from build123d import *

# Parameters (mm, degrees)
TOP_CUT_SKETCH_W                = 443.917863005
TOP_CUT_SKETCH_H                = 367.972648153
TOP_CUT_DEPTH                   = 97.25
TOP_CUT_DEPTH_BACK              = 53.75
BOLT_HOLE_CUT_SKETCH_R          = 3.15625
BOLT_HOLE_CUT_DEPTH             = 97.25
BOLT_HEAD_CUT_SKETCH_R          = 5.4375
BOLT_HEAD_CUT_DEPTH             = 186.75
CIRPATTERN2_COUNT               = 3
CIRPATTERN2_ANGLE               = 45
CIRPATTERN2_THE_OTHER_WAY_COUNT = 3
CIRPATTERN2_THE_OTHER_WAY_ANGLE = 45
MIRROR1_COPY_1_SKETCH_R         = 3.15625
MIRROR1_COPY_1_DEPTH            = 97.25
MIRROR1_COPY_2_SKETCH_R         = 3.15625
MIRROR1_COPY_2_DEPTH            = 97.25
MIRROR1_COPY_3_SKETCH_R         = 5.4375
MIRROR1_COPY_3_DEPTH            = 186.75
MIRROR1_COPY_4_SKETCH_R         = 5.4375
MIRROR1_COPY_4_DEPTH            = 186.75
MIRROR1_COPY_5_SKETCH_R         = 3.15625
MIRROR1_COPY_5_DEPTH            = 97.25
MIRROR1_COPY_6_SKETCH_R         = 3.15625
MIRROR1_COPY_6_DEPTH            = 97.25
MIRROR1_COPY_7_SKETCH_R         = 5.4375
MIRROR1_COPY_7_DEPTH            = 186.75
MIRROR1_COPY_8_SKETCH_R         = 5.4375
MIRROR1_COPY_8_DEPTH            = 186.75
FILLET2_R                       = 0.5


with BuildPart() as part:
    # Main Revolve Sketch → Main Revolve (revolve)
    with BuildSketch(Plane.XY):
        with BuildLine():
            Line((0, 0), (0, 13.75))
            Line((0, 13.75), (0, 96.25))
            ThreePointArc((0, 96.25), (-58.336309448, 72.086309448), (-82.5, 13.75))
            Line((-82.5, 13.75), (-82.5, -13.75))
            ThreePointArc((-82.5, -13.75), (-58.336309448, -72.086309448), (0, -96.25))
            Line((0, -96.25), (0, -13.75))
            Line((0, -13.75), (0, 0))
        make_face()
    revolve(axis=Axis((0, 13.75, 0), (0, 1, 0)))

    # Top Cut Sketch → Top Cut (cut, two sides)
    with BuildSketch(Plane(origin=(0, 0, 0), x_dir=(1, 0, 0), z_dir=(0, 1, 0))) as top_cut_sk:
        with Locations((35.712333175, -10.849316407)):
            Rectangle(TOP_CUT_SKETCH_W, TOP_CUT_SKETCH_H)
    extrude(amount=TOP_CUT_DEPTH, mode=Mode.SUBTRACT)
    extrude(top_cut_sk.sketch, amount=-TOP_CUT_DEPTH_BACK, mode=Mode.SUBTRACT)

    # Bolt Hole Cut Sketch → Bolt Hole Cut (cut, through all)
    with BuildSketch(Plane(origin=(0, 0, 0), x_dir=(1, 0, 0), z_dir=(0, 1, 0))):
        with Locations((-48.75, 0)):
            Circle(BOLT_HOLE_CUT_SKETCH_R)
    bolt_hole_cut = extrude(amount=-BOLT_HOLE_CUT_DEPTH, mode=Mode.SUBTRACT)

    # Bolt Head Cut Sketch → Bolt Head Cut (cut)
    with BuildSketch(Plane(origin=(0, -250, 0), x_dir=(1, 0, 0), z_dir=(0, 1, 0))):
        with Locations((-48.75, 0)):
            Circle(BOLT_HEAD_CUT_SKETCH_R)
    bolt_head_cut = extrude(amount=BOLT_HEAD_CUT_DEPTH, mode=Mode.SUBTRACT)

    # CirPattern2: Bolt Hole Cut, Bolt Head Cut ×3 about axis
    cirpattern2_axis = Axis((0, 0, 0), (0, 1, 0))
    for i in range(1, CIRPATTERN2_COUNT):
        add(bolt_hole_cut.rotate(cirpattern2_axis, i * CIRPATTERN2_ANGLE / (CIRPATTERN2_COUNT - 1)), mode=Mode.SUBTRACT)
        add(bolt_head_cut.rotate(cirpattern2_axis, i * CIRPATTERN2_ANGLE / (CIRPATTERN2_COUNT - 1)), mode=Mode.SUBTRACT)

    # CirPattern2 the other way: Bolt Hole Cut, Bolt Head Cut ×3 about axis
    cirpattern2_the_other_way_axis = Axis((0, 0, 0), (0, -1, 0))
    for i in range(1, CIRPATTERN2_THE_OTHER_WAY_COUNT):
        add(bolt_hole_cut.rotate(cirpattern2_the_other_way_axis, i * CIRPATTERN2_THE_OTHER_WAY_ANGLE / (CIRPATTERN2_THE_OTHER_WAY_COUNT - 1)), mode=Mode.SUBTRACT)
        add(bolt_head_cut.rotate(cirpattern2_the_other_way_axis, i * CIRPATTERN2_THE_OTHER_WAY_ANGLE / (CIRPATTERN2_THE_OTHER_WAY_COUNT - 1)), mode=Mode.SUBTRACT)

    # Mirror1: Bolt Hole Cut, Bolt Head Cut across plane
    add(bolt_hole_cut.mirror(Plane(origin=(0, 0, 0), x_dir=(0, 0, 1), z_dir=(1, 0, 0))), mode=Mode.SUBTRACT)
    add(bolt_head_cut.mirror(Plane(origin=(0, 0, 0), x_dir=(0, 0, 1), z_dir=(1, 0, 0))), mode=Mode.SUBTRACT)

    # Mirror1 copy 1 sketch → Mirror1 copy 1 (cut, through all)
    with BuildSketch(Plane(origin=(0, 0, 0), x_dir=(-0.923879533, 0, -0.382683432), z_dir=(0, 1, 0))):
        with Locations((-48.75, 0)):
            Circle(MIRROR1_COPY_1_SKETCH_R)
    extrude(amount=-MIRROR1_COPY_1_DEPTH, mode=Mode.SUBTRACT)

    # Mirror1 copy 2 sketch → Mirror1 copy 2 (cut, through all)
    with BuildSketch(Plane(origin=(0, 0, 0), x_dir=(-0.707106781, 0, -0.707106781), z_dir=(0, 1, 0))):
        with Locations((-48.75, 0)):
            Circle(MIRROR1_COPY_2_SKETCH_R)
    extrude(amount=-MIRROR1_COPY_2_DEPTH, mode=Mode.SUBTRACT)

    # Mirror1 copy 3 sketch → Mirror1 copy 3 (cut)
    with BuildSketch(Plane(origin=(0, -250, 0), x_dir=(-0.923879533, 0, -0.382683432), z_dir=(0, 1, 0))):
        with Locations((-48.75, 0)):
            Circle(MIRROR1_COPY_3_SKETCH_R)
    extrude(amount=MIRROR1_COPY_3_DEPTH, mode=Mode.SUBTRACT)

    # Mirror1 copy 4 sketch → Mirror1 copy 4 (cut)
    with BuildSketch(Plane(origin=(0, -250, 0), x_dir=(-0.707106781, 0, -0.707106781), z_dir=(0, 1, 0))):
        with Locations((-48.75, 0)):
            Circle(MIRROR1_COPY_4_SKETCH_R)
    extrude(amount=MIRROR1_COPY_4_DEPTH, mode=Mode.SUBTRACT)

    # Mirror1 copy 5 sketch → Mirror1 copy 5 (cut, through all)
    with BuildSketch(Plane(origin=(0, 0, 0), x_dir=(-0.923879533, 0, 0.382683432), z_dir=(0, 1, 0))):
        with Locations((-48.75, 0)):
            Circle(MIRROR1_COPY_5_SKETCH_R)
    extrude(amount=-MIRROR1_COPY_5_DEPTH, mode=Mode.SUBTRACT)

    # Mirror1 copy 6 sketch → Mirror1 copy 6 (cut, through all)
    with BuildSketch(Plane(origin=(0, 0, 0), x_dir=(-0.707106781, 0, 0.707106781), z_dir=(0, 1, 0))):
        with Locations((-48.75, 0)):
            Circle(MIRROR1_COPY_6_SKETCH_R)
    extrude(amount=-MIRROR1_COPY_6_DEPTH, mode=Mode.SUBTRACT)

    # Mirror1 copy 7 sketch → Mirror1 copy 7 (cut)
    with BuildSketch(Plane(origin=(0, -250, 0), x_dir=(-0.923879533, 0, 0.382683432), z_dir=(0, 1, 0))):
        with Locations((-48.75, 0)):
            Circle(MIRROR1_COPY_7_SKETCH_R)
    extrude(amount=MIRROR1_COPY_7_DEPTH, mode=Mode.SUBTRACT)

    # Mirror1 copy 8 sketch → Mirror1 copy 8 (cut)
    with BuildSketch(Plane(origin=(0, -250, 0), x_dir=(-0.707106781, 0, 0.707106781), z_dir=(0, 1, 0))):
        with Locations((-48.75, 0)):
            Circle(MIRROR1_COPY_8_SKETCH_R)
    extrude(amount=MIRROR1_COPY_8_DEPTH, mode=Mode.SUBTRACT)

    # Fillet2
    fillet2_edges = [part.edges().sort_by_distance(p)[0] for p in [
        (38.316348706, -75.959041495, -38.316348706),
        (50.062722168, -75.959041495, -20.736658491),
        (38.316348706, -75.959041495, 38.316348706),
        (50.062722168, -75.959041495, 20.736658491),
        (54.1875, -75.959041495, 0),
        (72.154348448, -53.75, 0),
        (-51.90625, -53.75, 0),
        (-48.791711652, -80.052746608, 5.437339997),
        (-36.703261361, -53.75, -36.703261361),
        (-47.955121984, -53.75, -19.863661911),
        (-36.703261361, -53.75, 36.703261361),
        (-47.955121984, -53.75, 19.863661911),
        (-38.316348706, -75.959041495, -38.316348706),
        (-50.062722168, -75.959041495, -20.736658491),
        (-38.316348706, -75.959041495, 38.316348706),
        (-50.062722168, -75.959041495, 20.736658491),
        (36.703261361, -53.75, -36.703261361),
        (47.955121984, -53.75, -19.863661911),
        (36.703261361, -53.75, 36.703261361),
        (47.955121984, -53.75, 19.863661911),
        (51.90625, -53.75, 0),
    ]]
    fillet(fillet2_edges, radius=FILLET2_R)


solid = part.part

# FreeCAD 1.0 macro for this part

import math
import FreeCAD as App
import Part
import Sketcher

V = App.Vector
Q = App.Units.Quantity


def edges_at(feature, points):
    """Names of the edges that pass closest to the given points."""
    edges = feature.Shape.Edges
    near = lambda p: min(range(len(edges)), key=lambda i: edges[i].distToShape(Part.Vertex(*p))[0])
    return sorted({f"Edge{near(p) + 1}" for p in points})

doc = App.newDocument("Part")
body = doc.addObject("PartDesign::Body", "Body")

sketch1 = body.newObject("Sketcher::SketchObject", "Sketch")
sketch1.AttachmentSupport = (doc.getObject("XY_Plane"), [""])
sketch1.MapMode = "FlatFace"
sketch1.addGeometry(Part.ArcOfCircle(Part.Circle(V(0, 14, 0), V(0, 0, 1), 82), math.radians(90), math.radians(180)), False)
sketch1.addGeometry(Part.LineSegment(V(-82, 14, 0), V(-82, -14, 0)), False)
sketch1.addGeometry(Part.ArcOfCircle(Part.Circle(V(0, -14, 0), V(0, 0, 1), 82), math.radians(180), math.radians(270)), False)
sketch1.addGeometry(Part.LineSegment(V(0, -96, 0), V(0, 96, 0)), False)
sketch1.addConstraint(Sketcher.Constraint("Tangent", 0, 2, 1, 1))
sketch1.addConstraint(Sketcher.Constraint("Tangent", 1, 2, 2, 1))
sketch1.addConstraint(Sketcher.Constraint("Coincident", 2, 2, 3, 1))
sketch1.addConstraint(Sketcher.Constraint("Coincident", 3, 2, 0, 1))
sketch1.addConstraint(Sketcher.Constraint("Vertical", 1))
sketch1.addConstraint(Sketcher.Constraint("Vertical", 3))
sketch1.addConstraint(Sketcher.Constraint("Equal", 0, 2))
sketch1.addConstraint(Sketcher.Constraint("Symmetric", 0, 3, 2, 3, -1, 1))
sketch1.addConstraint(Sketcher.Constraint("PointOnObject", 2, 2, -2))
sketch1.addConstraint(Sketcher.Constraint("Radius", 0, Q("82.5 mm")))
sketch1.addConstraint(Sketcher.Constraint("DistanceY", 1, 2, 1, 1, Q("27.5 mm")))
revolution = body.newObject("PartDesign::Revolution", "Revolution")
revolution.Profile = sketch1
revolution.ReferenceAxis = (sketch1, ["V_Axis"])
revolution.Angle = 360

sketch2 = body.newObject("Sketcher::SketchObject", "Sketch001")
sketch2.AttachmentSupport = (doc.getObject("XZ_Plane"), [""])
sketch2.MapMode = "FlatFace"
sketch2.addGeometry(Part.LineSegment(V(-186, -173, 0), V(-186, 195, 0)), False)
sketch2.addGeometry(Part.LineSegment(V(-186, 195, 0), V(258, 195, 0)), False)
sketch2.addGeometry(Part.LineSegment(V(258, 195, 0), V(258, -173, 0)), False)
sketch2.addGeometry(Part.LineSegment(V(258, -173, 0), V(-186, -173, 0)), False)
sketch2.addConstraint(Sketcher.Constraint("Coincident", 0, 2, 1, 1))
sketch2.addConstraint(Sketcher.Constraint("Coincident", 1, 2, 2, 1))
sketch2.addConstraint(Sketcher.Constraint("Coincident", 2, 2, 3, 1))
sketch2.addConstraint(Sketcher.Constraint("Coincident", 3, 2, 0, 1))
sketch2.addConstraint(Sketcher.Constraint("Vertical", 0))
sketch2.addConstraint(Sketcher.Constraint("Horizontal", 1))
sketch2.addConstraint(Sketcher.Constraint("Vertical", 2))
sketch2.addConstraint(Sketcher.Constraint("Horizontal", 3))
sketch2.addConstraint(Sketcher.Constraint("DistanceY", 0, 1, 0, 2, Q("367.972648 mm")))
sketch2.addConstraint(Sketcher.Constraint("DistanceX", 0, 2, -1, 1, Q("186.246598 mm")))
sketch2.addConstraint(Sketcher.Constraint("DistanceX", 1, 1, 1, 2, Q("443.917863 mm")))
sketch2.addConstraint(Sketcher.Constraint("DistanceY", -1, 1, 0, 2, Q("194.83564 mm")))
pocket1 = body.newObject("PartDesign::Pocket", "Pocket")
pocket1.Profile = sketch2
pocket1.Type = "TwoLengths"
pocket1.Length = 97.25
pocket1.Length2 = 53.75

sketch3 = body.newObject("Sketcher::SketchObject", "Sketch002")
sketch3.AttachmentSupport = (doc.getObject("XZ_Plane"), [""])
sketch3.MapMode = "FlatFace"
sketch3.addGeometry(Part.Circle(V(-48.8, 0, 0), V(0, 0, 1), 3.2), False)
sketch3.addConstraint(Sketcher.Constraint("PointOnObject", 0, 3, -1))
sketch3.addConstraint(Sketcher.Constraint("Diameter", 0, Q("6.3125 mm")))
sketch3.addConstraint(Sketcher.Constraint("DistanceX", 0, 3, -1, 1, Q("48.75 mm")))
pocket2 = body.newObject("PartDesign::Pocket", "Pocket001")
pocket2.Profile = sketch3
pocket2.Type = "ThroughAll"
pocket2.Reversed = True

sketch4 = body.newObject("Sketcher::SketchObject", "Sketch003")
sketch4.AttachmentSupport = (doc.getObject("XZ_Plane"), [""])
sketch4.MapMode = "FlatFace"
sketch4.AttachmentOffset = App.Placement(V(0, 0, 250), App.Rotation())
sketch4.addGeometry(Part.Circle(V(-49, 0, 0), V(0, 0, 1), 5), False)
sketch4.addConstraint(Sketcher.Constraint("PointOnObject", 0, 3, -1))
sketch4.addConstraint(Sketcher.Constraint("Diameter", 0, Q("10.875 mm")))
sketch4.addConstraint(Sketcher.Constraint("DistanceX", 0, 3, -1, 1, Q("48.75 mm")))
pocket3 = body.newObject("PartDesign::Pocket", "Pocket002")
pocket3.Profile = sketch4
pocket3.Length = 186.75
doc.recompute()

polarpattern = body.newObject("PartDesign::PolarPattern", "PolarPattern")
polarpattern.Originals = [pocket2, pocket3]
polarpattern.Axis = (doc.getObject("Y_Axis"), [""])
polarpattern.Angle = 45
polarpattern.Occurrences = 3
body.Tip = polarpattern
doc.recompute()

polarpattern2 = body.newObject("PartDesign::PolarPattern", "PolarPattern001")
polarpattern2.Originals = [pocket2, pocket3]
polarpattern2.Axis = (doc.getObject("Y_Axis"), [""])
polarpattern2.Angle = 45
polarpattern2.Occurrences = 3
polarpattern2.Reversed = True
body.Tip = polarpattern2
doc.recompute()

mirrored = body.newObject("PartDesign::Mirrored", "Mirrored")
mirrored.Originals = [pocket2, pocket3]
mirrored.MirrorPlane = (doc.getObject("YZ_Plane"), [""])
body.Tip = mirrored

sketch5 = body.newObject("Sketcher::SketchObject", "Sketch004")
sketch5.AttachmentSupport = (doc.getObject("XZ_Plane"), [""])
sketch5.MapMode = "FlatFace"
sketch5.addGeometry(Part.Circle(V(45, 18.7, 0), V(0, 0, 1), 3.2), False)
sketch5.addConstraint(Sketcher.Constraint("Diameter", 0, Q("6.3125 mm")))
sketch5.addConstraint(Sketcher.Constraint("DistanceX", -1, 1, 0, 3, Q("45.039127 mm")))
sketch5.addConstraint(Sketcher.Constraint("DistanceY", -1, 1, 0, 3, Q("18.655817 mm")))
pocket4 = body.newObject("PartDesign::Pocket", "Pocket003")
pocket4.Profile = sketch5
pocket4.Type = "ThroughAll"
pocket4.Reversed = True

sketch6 = body.newObject("Sketcher::SketchObject", "Sketch005")
sketch6.AttachmentSupport = (doc.getObject("XZ_Plane"), [""])
sketch6.MapMode = "FlatFace"
sketch6.addGeometry(Part.Circle(V(34.5, 34.5, 0), V(0, 0, 1), 3.2), False)
sketch6.addConstraint(Sketcher.Constraint("Diameter", 0, Q("6.3125 mm")))
sketch6.addConstraint(Sketcher.Constraint("DistanceX", -1, 1, 0, 3, Q("34.471456 mm")))
sketch6.addConstraint(Sketcher.Constraint("DistanceY", -1, 1, 0, 3, Q("34.471456 mm")))
pocket5 = body.newObject("PartDesign::Pocket", "Pocket004")
pocket5.Profile = sketch6
pocket5.Type = "ThroughAll"
pocket5.Reversed = True

sketch7 = body.newObject("Sketcher::SketchObject", "Sketch006")
sketch7.AttachmentSupport = (doc.getObject("XZ_Plane"), [""])
sketch7.MapMode = "FlatFace"
sketch7.AttachmentOffset = App.Placement(V(0, 0, 250), App.Rotation())
sketch7.addGeometry(Part.Circle(V(45, 19, 0), V(0, 0, 1), 5), False)
sketch7.addConstraint(Sketcher.Constraint("Diameter", 0, Q("10.875 mm")))
sketch7.addConstraint(Sketcher.Constraint("DistanceX", -1, 1, 0, 3, Q("45.039127 mm")))
sketch7.addConstraint(Sketcher.Constraint("DistanceY", -1, 1, 0, 3, Q("18.655817 mm")))
pocket6 = body.newObject("PartDesign::Pocket", "Pocket005")
pocket6.Profile = sketch7
pocket6.Length = 186.75

sketch8 = body.newObject("Sketcher::SketchObject", "Sketch007")
sketch8.AttachmentSupport = (doc.getObject("XZ_Plane"), [""])
sketch8.MapMode = "FlatFace"
sketch8.AttachmentOffset = App.Placement(V(0, 0, 250), App.Rotation())
sketch8.addGeometry(Part.Circle(V(34, 34, 0), V(0, 0, 1), 5), False)
sketch8.addConstraint(Sketcher.Constraint("Diameter", 0, Q("10.875 mm")))
sketch8.addConstraint(Sketcher.Constraint("DistanceX", -1, 1, 0, 3, Q("34.471456 mm")))
sketch8.addConstraint(Sketcher.Constraint("DistanceY", -1, 1, 0, 3, Q("34.471456 mm")))
pocket7 = body.newObject("PartDesign::Pocket", "Pocket006")
pocket7.Profile = sketch8
pocket7.Length = 186.75

sketch9 = body.newObject("Sketcher::SketchObject", "Sketch008")
sketch9.AttachmentSupport = (doc.getObject("XZ_Plane"), [""])
sketch9.MapMode = "FlatFace"
sketch9.addGeometry(Part.Circle(V(45, -18.7, 0), V(0, 0, 1), 3.2), False)
sketch9.addConstraint(Sketcher.Constraint("Diameter", 0, Q("6.3125 mm")))
sketch9.addConstraint(Sketcher.Constraint("DistanceX", -1, 1, 0, 3, Q("45.039127 mm")))
sketch9.addConstraint(Sketcher.Constraint("DistanceY", 0, 3, -1, 1, Q("18.655817 mm")))
pocket8 = body.newObject("PartDesign::Pocket", "Pocket007")
pocket8.Profile = sketch9
pocket8.Type = "ThroughAll"
pocket8.Reversed = True

sketch10 = body.newObject("Sketcher::SketchObject", "Sketch009")
sketch10.AttachmentSupport = (doc.getObject("XZ_Plane"), [""])
sketch10.MapMode = "FlatFace"
sketch10.addGeometry(Part.Circle(V(34.5, -34.5, 0), V(0, 0, 1), 3.2), False)
sketch10.addConstraint(Sketcher.Constraint("Diameter", 0, Q("6.3125 mm")))
sketch10.addConstraint(Sketcher.Constraint("DistanceX", -1, 1, 0, 3, Q("34.471456 mm")))
sketch10.addConstraint(Sketcher.Constraint("DistanceY", 0, 3, -1, 1, Q("34.471456 mm")))
pocket9 = body.newObject("PartDesign::Pocket", "Pocket008")
pocket9.Profile = sketch10
pocket9.Type = "ThroughAll"
pocket9.Reversed = True

sketch11 = body.newObject("Sketcher::SketchObject", "Sketch010")
sketch11.AttachmentSupport = (doc.getObject("XZ_Plane"), [""])
sketch11.MapMode = "FlatFace"
sketch11.AttachmentOffset = App.Placement(V(0, 0, 250), App.Rotation())
sketch11.addGeometry(Part.Circle(V(45, -19, 0), V(0, 0, 1), 5), False)
sketch11.addConstraint(Sketcher.Constraint("Diameter", 0, Q("10.875 mm")))
sketch11.addConstraint(Sketcher.Constraint("DistanceX", -1, 1, 0, 3, Q("45.039127 mm")))
sketch11.addConstraint(Sketcher.Constraint("DistanceY", 0, 3, -1, 1, Q("18.655817 mm")))
pocket10 = body.newObject("PartDesign::Pocket", "Pocket009")
pocket10.Profile = sketch11
pocket10.Length = 186.75

sketch12 = body.newObject("Sketcher::SketchObject", "Sketch011")
sketch12.AttachmentSupport = (doc.getObject("XZ_Plane"), [""])
sketch12.MapMode = "FlatFace"
sketch12.AttachmentOffset = App.Placement(V(0, 0, 250), App.Rotation())
sketch12.addGeometry(Part.Circle(V(34, -34, 0), V(0, 0, 1), 5), False)
sketch12.addConstraint(Sketcher.Constraint("Diameter", 0, Q("10.875 mm")))
sketch12.addConstraint(Sketcher.Constraint("DistanceX", -1, 1, 0, 3, Q("34.471456 mm")))
sketch12.addConstraint(Sketcher.Constraint("DistanceY", 0, 3, -1, 1, Q("34.471456 mm")))
pocket11 = body.newObject("PartDesign::Pocket", "Pocket010")
pocket11.Profile = sketch12
pocket11.Length = 186.75
doc.recompute()

fillet = body.newObject("PartDesign::Fillet", "Fillet")
fillet.Base = (pocket11, edges_at(pocket11, [
    (38.316, -75.959, -38.316),
    (50.063, -75.959, -20.737),
    (38.316, -75.959, 38.316),
    (50.063, -75.959, 20.737),
    (54.188, -75.959, 0),
    (72.154, -53.75, 0),
    (-51.906, -53.75, 0),
    (-48.792, -80.053, 5.437),
    (-36.703, -53.75, -36.703),
    (-47.955, -53.75, -19.864),
    (-36.703, -53.75, 36.703),
    (-47.955, -53.75, 19.864),
    (-38.316, -75.959, -38.316),
    (-50.063, -75.959, -20.737),
    (-38.316, -75.959, 38.316),
    (-50.063, -75.959, 20.737),
    (36.703, -53.75, -36.703),
    (47.955, -53.75, -19.864),
    (36.703, -53.75, 36.703),
    (47.955, -53.75, 19.864),
    (51.906, -53.75, 0),
]))
fillet.Radius = 0.5

doc.recompute()
